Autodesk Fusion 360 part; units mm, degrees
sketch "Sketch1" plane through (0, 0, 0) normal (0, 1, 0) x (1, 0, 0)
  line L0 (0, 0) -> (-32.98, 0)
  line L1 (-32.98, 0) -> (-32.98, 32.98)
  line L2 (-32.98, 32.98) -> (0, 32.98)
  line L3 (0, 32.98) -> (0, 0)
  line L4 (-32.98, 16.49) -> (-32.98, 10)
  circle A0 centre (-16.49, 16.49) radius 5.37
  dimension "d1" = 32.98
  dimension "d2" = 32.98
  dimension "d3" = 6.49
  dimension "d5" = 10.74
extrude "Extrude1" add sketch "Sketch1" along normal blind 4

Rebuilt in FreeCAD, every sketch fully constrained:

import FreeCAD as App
import Part
import Sketcher
Q = App.Units.Quantity

doc = App.newDocument("Part")
body = doc.addObject("PartDesign::Body", "Body")

# Sketch on XZ plane
sketch1 = doc.addObject("Sketcher::SketchObject", "Sketch")
body.addObject(sketch1)
sketch1.AttachmentSupport = (doc.XZ_Plane, [""])
sketch1.MapMode = "FlatFace"
sketch1.addGeometry(Part.LineSegment(App.Vector(-32.98, 0, 0), App.Vector(0, 0, 0)), False)
sketch1.addGeometry(Part.LineSegment(App.Vector(0, 0, 0), App.Vector(0, -32.98, 0)), False)
sketch1.addGeometry(Part.LineSegment(App.Vector(0, -32.98, 0), App.Vector(-32.98, -32.98, 0)), False)
sketch1.addGeometry(Part.LineSegment(App.Vector(-32.98, -32.98, 0), App.Vector(-32.98, 0, 0)), False)
sketch1.addGeometry(Part.Circle(App.Vector(-16.49, -16.49, 0), App.Vector(0, 0, 1), 5.37), False)
sketch1.addConstraint(Sketcher.Constraint("Coincident", 0, 2, 1, 1))
sketch1.addConstraint(Sketcher.Constraint("Coincident", 1, 2, 2, 1))
sketch1.addConstraint(Sketcher.Constraint("Coincident", 2, 2, 3, 1))
sketch1.addConstraint(Sketcher.Constraint("Coincident", 3, 2, 0, 1))
sketch1.addConstraint(Sketcher.Constraint("Horizontal", 0))
sketch1.addConstraint(Sketcher.Constraint("Vertical", 1))
sketch1.addConstraint(Sketcher.Constraint("Horizontal", 2))
sketch1.addConstraint(Sketcher.Constraint("Vertical", 3))
sketch1.addConstraint(Sketcher.Constraint("Coincident", 0, 2, -1, 1))
sketch1.addConstraint(Sketcher.Constraint("Equal", 2, 1))
sketch1.addConstraint(Sketcher.Constraint("Diameter", 4, Q("10.74 mm")))
sketch1.addConstraint(Sketcher.Constraint("DistanceX", 0, 1, 0, 2, Q("32.98 mm")))
sketch1.addConstraint(Sketcher.Constraint("DistanceX", 4, 3, -1, 1, Q("16.49 mm")))
sketch1.addConstraint(Sketcher.Constraint("DistanceY", 4, 3, -1, 1, Q("16.49 mm")))
pad1 = doc.addObject("PartDesign::Pad", "Pad")
body.addObject(pad1)
pad1.Profile = sketch1
pad1.Length = 4
pad1.Reversed = True

doc.recompute()
